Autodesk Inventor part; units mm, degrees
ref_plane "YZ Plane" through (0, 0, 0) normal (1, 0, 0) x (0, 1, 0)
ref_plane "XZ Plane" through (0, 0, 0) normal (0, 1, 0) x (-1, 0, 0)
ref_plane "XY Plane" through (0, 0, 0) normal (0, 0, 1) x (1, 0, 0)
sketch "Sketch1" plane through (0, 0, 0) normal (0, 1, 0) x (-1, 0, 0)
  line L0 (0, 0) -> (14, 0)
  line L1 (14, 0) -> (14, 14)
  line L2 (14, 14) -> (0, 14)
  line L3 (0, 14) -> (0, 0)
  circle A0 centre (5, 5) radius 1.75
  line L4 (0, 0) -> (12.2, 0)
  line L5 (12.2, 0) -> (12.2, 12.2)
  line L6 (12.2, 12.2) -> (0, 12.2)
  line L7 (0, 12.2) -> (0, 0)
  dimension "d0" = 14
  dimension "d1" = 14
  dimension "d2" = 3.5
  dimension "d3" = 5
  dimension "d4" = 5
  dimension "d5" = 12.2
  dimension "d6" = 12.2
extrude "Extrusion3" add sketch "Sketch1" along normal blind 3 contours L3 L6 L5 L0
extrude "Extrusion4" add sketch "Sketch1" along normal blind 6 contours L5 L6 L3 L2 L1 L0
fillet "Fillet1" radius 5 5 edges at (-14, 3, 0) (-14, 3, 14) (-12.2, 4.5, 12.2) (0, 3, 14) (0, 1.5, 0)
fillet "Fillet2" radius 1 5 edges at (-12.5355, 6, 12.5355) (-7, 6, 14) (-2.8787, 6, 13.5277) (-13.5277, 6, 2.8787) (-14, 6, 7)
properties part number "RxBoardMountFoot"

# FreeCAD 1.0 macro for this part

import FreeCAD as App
import Part
import Sketcher
from FreeCAD import Vector
Q = App.Units.Quantity


def edges_at(feature, points):
    """Names of the edges that pass closest to the given points."""
    edges = feature.Shape.Edges
    near = lambda p: min(range(len(edges)), key=lambda i: edges[i].distToShape(Part.Vertex(*p))[0])
    return sorted({f"Edge{near(p) + 1}" for p in points})


def add_polygon(sketch, points):
    """Adds a closed chain of lines whose ends are joined by coincident constraints."""
    first, n = sketch.GeometryCount, len(points)
    for a, b in zip(points, points[1:] + points[:1]):
        sketch.addGeometry(Part.LineSegment(App.Vector(*a, 0), App.Vector(*b, 0)), False)
    for i in range(n):
        sketch.addConstraint(Sketcher.Constraint("Coincident", first + i, 2, first + (i + 1) % n, 1))

doc = App.newDocument("Part")
params = doc.addObject("Spreadsheet::Sheet", "Params")
for row, (alias, value) in enumerate([
    ("sketch1_diameter", "3.5 mm"),
    ("sketch1_width", "12.2 mm"),
    ("pad1_length", "3 mm"),
    ("sketch2_width", "14 mm"),
    ("sketch2_width2", "12.2 mm"),
    ("pad2_length", "6 mm"),
    ("fillet_radius", "5 mm"),
    ("fillet2_radius", "1 mm"),
], start=1):
    params.set(f"A{row}", alias)
    params.set(f"B{row}", "=" + value)
    params.setAlias(f"B{row}", alias)

body = doc.addObject("PartDesign::Body", "Body")

sketch1 = body.newObject("Sketcher::SketchObject", "Sketch")
sketch1.AttachmentSupport = (doc.getObject("XZ_Plane"), [""])
sketch1.MapMode = "FlatFace"
add_polygon(sketch1, [(0, 12.2), (0, 0), (-12.2, 0), (-12.2, 12.2)])
sketch1.addGeometry(Part.Circle(Vector(-5, 5, 0), Vector(0, 0, 1), 1.75), False)
sketch1.addConstraint(Sketcher.Constraint("Vertical", 0))
sketch1.addConstraint(Sketcher.Constraint("Horizontal", 1))
sketch1.addConstraint(Sketcher.Constraint("Vertical", 2))
sketch1.addConstraint(Sketcher.Constraint("Horizontal", 3))
sketch1.addConstraint(Sketcher.Constraint("Coincident", 0, 2, -1, 1))
sketch1.addConstraint(Sketcher.Constraint("Equal", 3, 0))
sketch1.addConstraint(Sketcher.Constraint("Diameter", 4, Q("3.5 mm")))
sketch1.addConstraint(Sketcher.Constraint("DistanceX", 1, 2, 1, 1, Q("12.2 mm")))
sketch1.addConstraint(Sketcher.Constraint("DistanceX", 4, 3, -1, 1, Q("5 mm")))
sketch1.addConstraint(Sketcher.Constraint("DistanceY", -1, 1, 4, 3, Q("5 mm")))
sketch1.setExpression("Constraints[10]", "Params.sketch1_diameter")
sketch1.setExpression("Constraints[11]", "Params.sketch1_width")
pad1 = body.newObject("PartDesign::Pad", "Pad")
pad1.Profile = sketch1
pad1.setExpression("Length", "Params.pad1_length")
pad1.Reversed = True

sketch2 = body.newObject("Sketcher::SketchObject", "Sketch001")
sketch2.AttachmentSupport = (doc.getObject("XZ_Plane"), [""])
sketch2.MapMode = "FlatFace"
add_polygon(sketch2, [(-12.2, 12.2), (-12.2, 0), (-14, 0), (-14, 14), (0, 14), (0, 12.2)])
sketch2.addConstraint(Sketcher.Constraint("Vertical", 0))
sketch2.addConstraint(Sketcher.Constraint("Horizontal", 1))
sketch2.addConstraint(Sketcher.Constraint("Vertical", 2))
sketch2.addConstraint(Sketcher.Constraint("Horizontal", 3))
sketch2.addConstraint(Sketcher.Constraint("Vertical", 4))
sketch2.addConstraint(Sketcher.Constraint("Horizontal", 5))
sketch2.addConstraint(Sketcher.Constraint("PointOnObject", 0, 2, -1))
sketch2.addConstraint(Sketcher.Constraint("PointOnObject", 3, 2, -2))
sketch2.addConstraint(Sketcher.Constraint("Equal", 5, 0))
sketch2.addConstraint(Sketcher.Constraint("Equal", 3, 2))
sketch2.addConstraint(Sketcher.Constraint("DistanceX", 3, 1, 3, 2, Q("14 mm")))
sketch2.addConstraint(Sketcher.Constraint("DistanceX", 5, 2, 5, 1, Q("12.2 mm")))
sketch2.setExpression("Constraints[16]", "Params.sketch2_width")
sketch2.setExpression("Constraints[17]", "Params.sketch2_width2")
pad2 = body.newObject("PartDesign::Pad", "Pad001")
pad2.Profile = sketch2
pad2.setExpression("Length", "Params.pad2_length")
pad2.Reversed = True
doc.recompute()

fillet = body.newObject("PartDesign::Fillet", "Fillet")
fillet.Base = (pad2, edges_at(pad2, [
    (-14, 3, 0),
    (-14, 3, 14),
    (-12.2, 4.5, 12.2),
    (0, 3, 14),
    (0, 1.5, 0),
]))
fillet.setExpression("Radius", "Params.fillet_radius")
doc.recompute()

fillet2 = body.newObject("PartDesign::Fillet", "Fillet001")
fillet2.Base = (fillet, edges_at(fillet, [
    (-12.536, 6, 12.536),
    (-7, 6, 14),
    (-2.879, 6, 13.528),
    (-13.528, 6, 2.879),
    (-14, 6, 7),
]))
fillet2.setExpression("Radius", "Params.fillet2_radius")

doc.recompute()
